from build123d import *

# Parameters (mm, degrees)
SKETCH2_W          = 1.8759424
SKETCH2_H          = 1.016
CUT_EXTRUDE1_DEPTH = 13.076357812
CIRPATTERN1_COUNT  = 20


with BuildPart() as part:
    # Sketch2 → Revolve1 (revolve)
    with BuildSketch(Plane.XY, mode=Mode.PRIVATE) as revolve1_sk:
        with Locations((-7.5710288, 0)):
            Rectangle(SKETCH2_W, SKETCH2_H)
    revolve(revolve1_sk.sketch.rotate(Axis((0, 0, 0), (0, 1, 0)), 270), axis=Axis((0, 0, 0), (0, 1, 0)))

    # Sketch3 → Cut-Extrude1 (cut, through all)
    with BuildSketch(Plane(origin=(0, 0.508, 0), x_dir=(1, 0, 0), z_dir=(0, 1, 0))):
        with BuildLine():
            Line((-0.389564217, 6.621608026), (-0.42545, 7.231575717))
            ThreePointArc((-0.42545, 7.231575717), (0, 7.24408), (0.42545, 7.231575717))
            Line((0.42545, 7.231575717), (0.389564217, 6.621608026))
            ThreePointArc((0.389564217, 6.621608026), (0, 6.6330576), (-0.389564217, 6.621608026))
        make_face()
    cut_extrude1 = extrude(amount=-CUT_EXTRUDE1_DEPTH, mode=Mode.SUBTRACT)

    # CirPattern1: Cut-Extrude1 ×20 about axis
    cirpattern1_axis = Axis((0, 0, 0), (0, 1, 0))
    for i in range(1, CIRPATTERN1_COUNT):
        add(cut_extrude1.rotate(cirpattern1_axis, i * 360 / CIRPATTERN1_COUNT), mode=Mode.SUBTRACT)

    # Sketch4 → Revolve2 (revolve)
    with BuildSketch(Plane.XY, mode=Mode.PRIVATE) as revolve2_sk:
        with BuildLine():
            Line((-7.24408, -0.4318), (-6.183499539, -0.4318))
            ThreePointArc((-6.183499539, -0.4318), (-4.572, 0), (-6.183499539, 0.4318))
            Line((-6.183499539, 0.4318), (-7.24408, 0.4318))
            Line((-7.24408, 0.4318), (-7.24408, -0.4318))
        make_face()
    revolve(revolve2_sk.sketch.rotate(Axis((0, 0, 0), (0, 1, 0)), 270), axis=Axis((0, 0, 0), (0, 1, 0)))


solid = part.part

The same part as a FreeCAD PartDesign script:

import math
import FreeCAD as App
import Part
import Sketcher
Q = App.Units.Quantity


def add_polygon(sketch, points):
    """Adds a closed chain of lines whose ends are joined by coincident constraints."""
    first, n = sketch.GeometryCount, len(points)
    for a, b in zip(points, points[1:] + points[:1]):
        sketch.addGeometry(Part.LineSegment(App.Vector(*a, 0), App.Vector(*b, 0)), False)
    for i in range(n):
        sketch.addConstraint(Sketcher.Constraint("Coincident", first + i, 2, first + (i + 1) % n, 1))

doc = App.newDocument("Part")
body = doc.addObject("PartDesign::Body", "Body")

# Sketch on XY plane
sketch1 = body.newObject("Sketcher::SketchObject", "Sketch")
sketch1.AttachmentSupport = (doc.getObject("XY_Plane"), [""])
sketch1.MapMode = "FlatFace"
add_polygon(sketch1, [(-8.5, 0.5), (-8.5, -0.5), (-6.6, -0.5), (-6.6, 0.5)])  # lines 0-3
sketch1.addConstraint([
    Sketcher.Constraint("Vertical", 0),
    Sketcher.Constraint("Horizontal", 1),
    Sketcher.Constraint("Vertical", 2),
    Sketcher.Constraint("Horizontal", 3),
    Sketcher.Constraint("DistanceY", 0, 2, 0, 1, Q("0.04 in")),
    Sketcher.Constraint("DistanceY", 0, 2, -1, 1, Q("0.02 in")),
    Sketcher.Constraint("DistanceX", 0, 2, -1, 1, Q("0.335 in")),
    Sketcher.Constraint("DistanceX", 1, 1, 1, 2, 1.875942),
])
revolution = body.newObject("PartDesign::Revolution", "Revolution")
revolution.Profile = sketch1
revolution.ReferenceAxis = (sketch1, ["V_Axis"])
revolution.Angle = 360

# Sketch on XZ plane
sketch2 = body.newObject("Sketcher::SketchObject", "Sketch001")
sketch2.AttachmentSupport = (doc.getObject("XZ_Plane"), [""])
sketch2.MapMode = "FlatFace"
sketch2.AttachmentOffset = App.Placement(App.Vector(0, 0, -0.02 * 25.4), App.Rotation())
sketch2.addGeometry([
    Part.LineSegment(App.Vector(-0.4, -7.2, 0), App.Vector(-0.4, -6.6, 0)),
    Part.ArcOfCircle(Part.Circle(App.Vector(0, 0, 0), App.Vector(0, 0, 1), 6.6), math.radians(-93.37), math.radians(-86.63)),
    Part.LineSegment(App.Vector(0.4, -6.6, 0), App.Vector(0.4, -7.2, 0)),
    Part.ArcOfCircle(Part.Circle(App.Vector(0, 0, 0), App.Vector(0, 0, 1), 7.2), math.radians(-93.37), math.radians(-86.63)),
], False)
sketch2.addConstraint([
    Sketcher.Constraint("Coincident", 0, 2, 1, 1),
    Sketcher.Constraint("Coincident", 1, 2, 2, 1),
    Sketcher.Constraint("Coincident", 2, 2, 3, 2),
    Sketcher.Constraint("Coincident", 3, 1, 0, 1),
    Sketcher.Constraint("Coincident", 1, 3, -1, 1),
    Sketcher.Constraint("Coincident", 3, 3, -1, 1),
    Sketcher.Constraint("Horizontal", 0, 2, 1, 2),
    Sketcher.Constraint("Horizontal", 2, 2, 3, 1),
    Sketcher.Constraint("Radius", 3, Q("0.2852 in")),
    Sketcher.Constraint("Radius", 1, 6.633058),
    Sketcher.Constraint("DistanceX", 3, 1, 2, 2, Q("0.0335 in")),
    Sketcher.Constraint("DistanceY", 0, 2, -1, 1, 6.621608),
])
pocket1 = body.newObject("PartDesign::Pocket", "Pocket")
pocket1.Profile = sketch2
pocket1.Type = "ThroughAll"
pocket1.Reversed = True
doc.recompute()

polarpattern = body.newObject("PartDesign::PolarPattern", "PolarPattern")
polarpattern.Originals = [pocket1]
polarpattern.Axis = (doc.getObject("Y_Axis"), [""])
polarpattern.Angle = 360
polarpattern.Occurrences = 20
body.Tip = polarpattern

# Sketch on XY plane
sketch3 = body.newObject("Sketcher::SketchObject", "Sketch002")
sketch3.AttachmentSupport = (doc.getObject("XY_Plane"), [""])
sketch3.MapMode = "FlatFace"
sketch3.addGeometry([
    Part.LineSegment(App.Vector(-7.2, -0.4, 0), App.Vector(-6.2, -0.4, 0)),
    Part.ArcOfCircle(Part.Circle(App.Vector(-5.4, 0, 0), App.Vector(0, 0, 1), 0.9), math.radians(-150), math.radians(150)),
    Part.LineSegment(App.Vector(-6.2, 0.4, 0), App.Vector(-7.2, 0.4, 0)),
    Part.LineSegment(App.Vector(-7.2, 0.4, 0), App.Vector(-7.2, -0.4, 0)),
], False)
sketch3.addConstraint([
    Sketcher.Constraint("Coincident", 0, 2, 1, 1),
    Sketcher.Constraint("Coincident", 1, 2, 2, 1),
    Sketcher.Constraint("Coincident", 2, 2, 3, 1),
    Sketcher.Constraint("Coincident", 3, 2, 0, 1),
    Sketcher.Constraint("Horizontal", 0),
    Sketcher.Constraint("Horizontal", 2),
    Sketcher.Constraint("Vertical", 3),
    Sketcher.Constraint("Symmetric", 0, 2, 1, 2, -1),
    Sketcher.Constraint("Radius", 1, Q("0.034 in")),
    Sketcher.Constraint("DistanceY", 3, 2, 3, 1, Q("0.034 in")),
    Sketcher.Constraint("DistanceX", 1, 3, -1, 1, Q("0.214 in")),
    Sketcher.Constraint("DistanceX", 2, 2, -1, 1, Q("0.2852 in")),
])
revolution2 = body.newObject("PartDesign::Revolution", "Revolution001")
revolution2.Profile = sketch3
revolution2.ReferenceAxis = (sketch3, ["V_Axis"])
revolution2.Angle = 360

doc.recompute()
